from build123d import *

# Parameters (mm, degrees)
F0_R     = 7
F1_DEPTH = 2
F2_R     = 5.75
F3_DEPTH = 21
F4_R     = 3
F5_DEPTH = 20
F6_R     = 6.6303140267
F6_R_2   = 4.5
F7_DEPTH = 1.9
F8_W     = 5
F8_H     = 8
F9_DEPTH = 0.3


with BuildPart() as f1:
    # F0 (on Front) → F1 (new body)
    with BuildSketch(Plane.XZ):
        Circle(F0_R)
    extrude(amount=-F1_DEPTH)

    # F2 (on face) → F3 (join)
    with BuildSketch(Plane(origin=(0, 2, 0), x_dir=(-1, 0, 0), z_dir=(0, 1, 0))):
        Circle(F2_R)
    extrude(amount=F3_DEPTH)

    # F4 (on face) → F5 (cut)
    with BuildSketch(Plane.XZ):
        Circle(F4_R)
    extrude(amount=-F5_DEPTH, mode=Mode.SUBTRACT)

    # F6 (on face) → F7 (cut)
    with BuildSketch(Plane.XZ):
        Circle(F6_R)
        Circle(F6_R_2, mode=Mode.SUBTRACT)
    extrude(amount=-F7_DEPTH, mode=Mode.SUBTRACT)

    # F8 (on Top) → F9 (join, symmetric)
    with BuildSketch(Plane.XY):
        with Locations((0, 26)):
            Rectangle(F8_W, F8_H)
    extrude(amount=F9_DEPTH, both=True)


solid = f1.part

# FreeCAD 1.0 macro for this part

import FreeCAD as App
import Part
import Sketcher

doc = App.newDocument("Part")
body = doc.addObject("PartDesign::Body", "Body")

# Sketch on XZ plane
sketch1 = body.newObject("Sketcher::SketchObject", "Sketch")
sketch1.AttachmentSupport = (doc.getObject("XZ_Plane"), [""])
sketch1.MapMode = "FlatFace"
sketch1.addGeometry(Part.Circle(App.Vector(0, 0, 0), App.Vector(0, 0, 1), 7), False)
sketch1.addConstraint([
    Sketcher.Constraint("Coincident", 0, 3, -1, 1),
    Sketcher.Constraint("Diameter", 0, 14.0),
])
pad1 = body.newObject("PartDesign::Pad", "Pad")
pad1.Profile = sketch1
pad1.Length = 2
pad1.Reversed = True

# Sketch on XZ plane
sketch2 = body.newObject("Sketcher::SketchObject", "Sketch001")
sketch2.AttachmentSupport = (doc.getObject("XZ_Plane"), [""])
sketch2.MapMode = "FlatFace"
sketch2.AttachmentOffset = App.Placement(App.Vector(0, 0, -2), App.Rotation())
sketch2.addGeometry(Part.Circle(App.Vector(0, 0, 0), App.Vector(0, 0, 1), 6), False)
sketch2.addConstraint([
    Sketcher.Constraint("Coincident", 0, 3, -1, 1),
    Sketcher.Constraint("Diameter", 0, 11.5),
])
pad2 = body.newObject("PartDesign::Pad", "Pad001")
pad2.Profile = sketch2
pad2.Length = 21
pad2.Reversed = True

# Sketch on XZ plane
sketch3 = body.newObject("Sketcher::SketchObject", "Sketch002")
sketch3.AttachmentSupport = (doc.getObject("XZ_Plane"), [""])
sketch3.MapMode = "FlatFace"
sketch3.addGeometry(Part.Circle(App.Vector(0, 0, 0), App.Vector(0, 0, 1), 3), False)
sketch3.addConstraint([
    Sketcher.Constraint("Coincident", 0, 3, -1, 1),
    Sketcher.Constraint("Diameter", 0, 6.0),
])
pocket1 = body.newObject("PartDesign::Pocket", "Pocket")
pocket1.Profile = sketch3
pocket1.Length = 20

# Sketch on XZ plane
sketch4 = body.newObject("Sketcher::SketchObject", "Sketch003")
sketch4.AttachmentSupport = (doc.getObject("XZ_Plane"), [""])
sketch4.MapMode = "FlatFace"
sketch4.addGeometry([
    Part.Circle(App.Vector(0, 0, 0), App.Vector(0, 0, 1), 6.6),
    Part.Circle(App.Vector(0, 0, 0), App.Vector(0, 0, 1), 4.5),
], False)
sketch4.addConstraint([
    Sketcher.Constraint("Coincident", 0, 3, -1, 1),
    Sketcher.Constraint("Coincident", 1, 3, -1, 1),
    Sketcher.Constraint("Diameter", 1, 9.0),
    Sketcher.Constraint("Diameter", 0, 13.260628),
])
pocket2 = body.newObject("PartDesign::Pocket", "Pocket001")
pocket2.Profile = sketch4
pocket2.Length = 1.9

# Sketch on XY plane
sketch5 = body.newObject("Sketcher::SketchObject", "Sketch004")
sketch5.AttachmentSupport = (doc.getObject("XY_Plane"), [""])
sketch5.MapMode = "FlatFace"
sketch5.addGeometry([
    Part.LineSegment(App.Vector(-2, 30, 0), App.Vector(-2, 22, 0)),
    Part.LineSegment(App.Vector(-2, 22, 0), App.Vector(2, 22, 0)),
    Part.LineSegment(App.Vector(2, 22, 0), App.Vector(2, 30, 0)),
    Part.LineSegment(App.Vector(2, 30, 0), App.Vector(-2, 30, 0)),
], False)
sketch5.addConstraint([
    Sketcher.Constraint("Coincident", 0, 2, 1, 1),
    Sketcher.Constraint("Coincident", 1, 2, 2, 1),
    Sketcher.Constraint("Coincident", 2, 2, 3, 1),
    Sketcher.Constraint("Coincident", 3, 2, 0, 1),
    Sketcher.Constraint("Vertical", 0),
    Sketcher.Constraint("Horizontal", 1),
    Sketcher.Constraint("Vertical", 2),
    Sketcher.Constraint("Horizontal", 3),
    Sketcher.Constraint("DistanceX", 1, 1, 1, 2, 5.0),
    Sketcher.Constraint("DistanceY", 0, 2, 0, 1, 8.0),
    Sketcher.Constraint("DistanceY", -1, 1, 0, 2, 22.0),
    Sketcher.Constraint("DistanceX", 0, 2, -1, 1, 2.5),
])
pad3 = body.newObject("PartDesign::Pad", "Pad002")
pad3.Profile = sketch5
pad3.Length = 0.6
pad3.Midplane = True

doc.recompute()
